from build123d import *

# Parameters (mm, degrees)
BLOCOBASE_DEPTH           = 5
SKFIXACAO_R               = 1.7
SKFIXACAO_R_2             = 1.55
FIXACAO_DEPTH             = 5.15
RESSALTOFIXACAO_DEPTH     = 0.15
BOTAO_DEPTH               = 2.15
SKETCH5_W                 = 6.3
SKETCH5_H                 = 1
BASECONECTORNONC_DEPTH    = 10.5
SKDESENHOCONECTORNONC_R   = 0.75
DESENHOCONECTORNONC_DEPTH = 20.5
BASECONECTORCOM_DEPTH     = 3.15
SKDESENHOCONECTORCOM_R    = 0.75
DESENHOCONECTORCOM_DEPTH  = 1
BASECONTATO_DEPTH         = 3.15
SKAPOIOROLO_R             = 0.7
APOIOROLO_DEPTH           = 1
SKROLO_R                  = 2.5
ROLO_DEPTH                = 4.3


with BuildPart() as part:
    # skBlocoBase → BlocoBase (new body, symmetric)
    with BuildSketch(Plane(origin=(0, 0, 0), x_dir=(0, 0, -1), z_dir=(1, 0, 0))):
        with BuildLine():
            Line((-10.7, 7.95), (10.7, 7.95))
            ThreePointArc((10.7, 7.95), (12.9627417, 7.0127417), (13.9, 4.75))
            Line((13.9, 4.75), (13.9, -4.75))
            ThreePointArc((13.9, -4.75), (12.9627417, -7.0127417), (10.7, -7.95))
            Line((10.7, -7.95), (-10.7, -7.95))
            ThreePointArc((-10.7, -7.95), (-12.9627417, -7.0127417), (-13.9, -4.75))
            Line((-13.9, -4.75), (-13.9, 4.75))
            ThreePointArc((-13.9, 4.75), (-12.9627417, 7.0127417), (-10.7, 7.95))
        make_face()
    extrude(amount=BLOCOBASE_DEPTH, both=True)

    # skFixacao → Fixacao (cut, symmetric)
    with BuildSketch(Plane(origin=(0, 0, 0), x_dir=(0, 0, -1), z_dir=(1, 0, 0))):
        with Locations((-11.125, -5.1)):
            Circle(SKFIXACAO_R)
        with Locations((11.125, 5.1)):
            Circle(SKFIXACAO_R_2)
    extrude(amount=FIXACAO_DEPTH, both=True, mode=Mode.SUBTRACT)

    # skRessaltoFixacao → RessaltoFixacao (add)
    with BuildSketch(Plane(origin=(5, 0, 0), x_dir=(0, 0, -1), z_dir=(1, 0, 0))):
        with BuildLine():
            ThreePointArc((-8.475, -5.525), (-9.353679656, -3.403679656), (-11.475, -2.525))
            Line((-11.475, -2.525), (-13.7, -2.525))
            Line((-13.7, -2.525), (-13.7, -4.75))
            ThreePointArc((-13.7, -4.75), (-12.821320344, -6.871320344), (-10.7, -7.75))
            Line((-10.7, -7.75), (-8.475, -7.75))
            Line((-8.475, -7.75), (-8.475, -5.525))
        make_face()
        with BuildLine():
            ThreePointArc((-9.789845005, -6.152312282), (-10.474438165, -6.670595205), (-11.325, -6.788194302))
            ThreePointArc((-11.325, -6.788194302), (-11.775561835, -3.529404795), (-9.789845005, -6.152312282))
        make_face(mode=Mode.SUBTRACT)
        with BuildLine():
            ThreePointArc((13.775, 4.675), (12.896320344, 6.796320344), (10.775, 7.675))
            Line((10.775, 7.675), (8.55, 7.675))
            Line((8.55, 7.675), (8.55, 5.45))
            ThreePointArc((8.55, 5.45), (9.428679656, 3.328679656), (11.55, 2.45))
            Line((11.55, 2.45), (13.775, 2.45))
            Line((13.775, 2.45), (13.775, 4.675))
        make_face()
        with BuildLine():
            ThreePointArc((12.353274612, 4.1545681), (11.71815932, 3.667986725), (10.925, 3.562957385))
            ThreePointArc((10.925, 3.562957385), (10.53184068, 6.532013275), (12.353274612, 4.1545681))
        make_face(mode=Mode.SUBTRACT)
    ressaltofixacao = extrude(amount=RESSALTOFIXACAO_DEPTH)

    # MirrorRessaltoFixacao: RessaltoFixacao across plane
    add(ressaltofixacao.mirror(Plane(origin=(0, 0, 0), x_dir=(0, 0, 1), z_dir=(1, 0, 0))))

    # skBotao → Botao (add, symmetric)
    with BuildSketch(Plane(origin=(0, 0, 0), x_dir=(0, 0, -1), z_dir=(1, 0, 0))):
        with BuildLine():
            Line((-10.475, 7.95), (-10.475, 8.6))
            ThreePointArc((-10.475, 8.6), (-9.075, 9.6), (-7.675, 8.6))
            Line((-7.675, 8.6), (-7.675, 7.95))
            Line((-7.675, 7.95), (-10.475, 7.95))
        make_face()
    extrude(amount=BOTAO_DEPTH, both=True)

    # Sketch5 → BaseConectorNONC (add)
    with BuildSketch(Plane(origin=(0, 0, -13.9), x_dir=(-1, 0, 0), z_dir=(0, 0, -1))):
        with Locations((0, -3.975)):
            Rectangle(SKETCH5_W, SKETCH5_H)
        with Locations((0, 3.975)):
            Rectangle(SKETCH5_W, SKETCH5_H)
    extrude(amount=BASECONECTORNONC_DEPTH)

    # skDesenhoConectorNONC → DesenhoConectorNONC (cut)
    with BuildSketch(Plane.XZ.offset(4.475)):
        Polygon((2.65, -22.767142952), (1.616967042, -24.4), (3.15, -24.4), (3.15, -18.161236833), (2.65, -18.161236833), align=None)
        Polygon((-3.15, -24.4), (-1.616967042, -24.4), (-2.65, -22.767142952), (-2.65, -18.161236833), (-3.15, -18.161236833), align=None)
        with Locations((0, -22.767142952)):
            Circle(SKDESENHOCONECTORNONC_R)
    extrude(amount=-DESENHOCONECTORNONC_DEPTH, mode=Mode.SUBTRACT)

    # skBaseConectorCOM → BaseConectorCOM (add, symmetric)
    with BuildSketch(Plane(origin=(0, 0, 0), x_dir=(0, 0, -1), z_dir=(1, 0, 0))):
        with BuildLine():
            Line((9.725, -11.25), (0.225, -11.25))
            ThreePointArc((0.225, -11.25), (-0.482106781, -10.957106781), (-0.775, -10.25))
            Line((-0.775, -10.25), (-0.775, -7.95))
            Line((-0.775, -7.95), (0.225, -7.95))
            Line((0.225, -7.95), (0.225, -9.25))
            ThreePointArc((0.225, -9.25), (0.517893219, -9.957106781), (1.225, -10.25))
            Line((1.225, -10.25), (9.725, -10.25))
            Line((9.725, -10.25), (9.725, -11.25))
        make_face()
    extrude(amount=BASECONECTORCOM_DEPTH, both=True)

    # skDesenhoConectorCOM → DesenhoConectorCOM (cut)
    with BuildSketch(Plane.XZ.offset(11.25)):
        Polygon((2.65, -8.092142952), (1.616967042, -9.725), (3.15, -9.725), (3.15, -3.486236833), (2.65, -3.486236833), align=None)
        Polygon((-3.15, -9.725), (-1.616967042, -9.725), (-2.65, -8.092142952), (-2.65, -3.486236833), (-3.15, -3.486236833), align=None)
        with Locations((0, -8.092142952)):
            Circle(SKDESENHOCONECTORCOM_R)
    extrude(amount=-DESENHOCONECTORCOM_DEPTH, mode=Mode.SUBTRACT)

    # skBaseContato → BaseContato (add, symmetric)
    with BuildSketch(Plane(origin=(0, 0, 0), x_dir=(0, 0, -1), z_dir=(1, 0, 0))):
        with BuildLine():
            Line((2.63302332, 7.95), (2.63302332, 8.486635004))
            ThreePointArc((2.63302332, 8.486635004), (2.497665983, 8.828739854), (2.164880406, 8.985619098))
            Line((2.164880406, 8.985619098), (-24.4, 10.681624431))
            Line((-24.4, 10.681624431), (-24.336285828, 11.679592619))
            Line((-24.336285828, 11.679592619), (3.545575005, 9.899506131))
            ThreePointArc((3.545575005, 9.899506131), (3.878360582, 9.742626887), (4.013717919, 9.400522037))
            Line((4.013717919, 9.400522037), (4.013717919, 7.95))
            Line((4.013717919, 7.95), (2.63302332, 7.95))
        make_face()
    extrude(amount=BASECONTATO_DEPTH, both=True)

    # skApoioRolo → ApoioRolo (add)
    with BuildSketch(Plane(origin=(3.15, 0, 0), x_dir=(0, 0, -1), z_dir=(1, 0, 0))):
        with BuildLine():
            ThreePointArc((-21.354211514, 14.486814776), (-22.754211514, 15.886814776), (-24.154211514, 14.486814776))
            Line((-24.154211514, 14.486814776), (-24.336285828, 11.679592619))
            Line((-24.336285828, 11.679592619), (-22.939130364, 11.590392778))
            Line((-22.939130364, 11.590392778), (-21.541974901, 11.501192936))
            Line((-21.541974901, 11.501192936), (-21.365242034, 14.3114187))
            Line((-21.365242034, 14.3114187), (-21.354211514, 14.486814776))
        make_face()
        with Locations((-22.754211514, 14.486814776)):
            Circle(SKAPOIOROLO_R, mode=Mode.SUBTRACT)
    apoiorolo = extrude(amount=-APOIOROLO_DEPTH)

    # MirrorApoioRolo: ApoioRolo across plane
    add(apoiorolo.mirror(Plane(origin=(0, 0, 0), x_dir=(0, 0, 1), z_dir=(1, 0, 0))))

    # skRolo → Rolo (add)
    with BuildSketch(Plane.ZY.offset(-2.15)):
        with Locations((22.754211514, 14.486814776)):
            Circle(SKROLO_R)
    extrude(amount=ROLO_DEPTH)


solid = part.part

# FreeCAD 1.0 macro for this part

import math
import FreeCAD as App
import Part
import Sketcher
from FreeCAD import Vector

doc = App.newDocument("Part")
body = doc.addObject("PartDesign::Body", "Body")

# Sketch on YZ plane
sketch1 = body.newObject("Sketcher::SketchObject", "Sketch")
sketch1.AttachmentSupport = (doc.getObject("YZ_Plane"), [""])
sketch1.MapMode = "FlatFace"
sketch1.addGeometry(Part.LineSegment(Vector(8, -10.7, 0), Vector(8, 10.7, 0)), False)
sketch1.addGeometry(Part.ArcOfCircle(Part.Circle(Vector(4.8, 10.7, 0), Vector(0, 0, 1), 3.2), math.radians(0), math.radians(90)), False)
sketch1.addGeometry(Part.LineSegment(Vector(4.8, 13.9, 0), Vector(-4.8, 13.9, 0)), False)
sketch1.addGeometry(Part.ArcOfCircle(Part.Circle(Vector(-4.8, 10.7, 0), Vector(0, 0, 1), 3.2), math.radians(90), math.radians(180)), False)
sketch1.addGeometry(Part.LineSegment(Vector(-8, 10.7, 0), Vector(-8, -10.7, 0)), False)
sketch1.addGeometry(Part.ArcOfCircle(Part.Circle(Vector(-4.8, -10.7, 0), Vector(0, 0, 1), 3.2), math.radians(180), math.radians(270)), False)
sketch1.addGeometry(Part.LineSegment(Vector(-4.8, -13.9, 0), Vector(4.8, -13.9, 0)), False)
sketch1.addGeometry(Part.ArcOfCircle(Part.Circle(Vector(4.8, -10.7, 0), Vector(0, 0, 1), 3.2), math.radians(-90), math.radians(0)), False)
sketch1.addConstraint(Sketcher.Constraint("Tangent", 0, 2, 1, 1))
sketch1.addConstraint(Sketcher.Constraint("Tangent", 1, 2, 2, 1))
sketch1.addConstraint(Sketcher.Constraint("Tangent", 2, 2, 3, 1))
sketch1.addConstraint(Sketcher.Constraint("Tangent", 3, 2, 4, 1))
sketch1.addConstraint(Sketcher.Constraint("Tangent", 4, 2, 5, 1))
sketch1.addConstraint(Sketcher.Constraint("Tangent", 5, 2, 6, 1))
sketch1.addConstraint(Sketcher.Constraint("Tangent", 6, 2, 7, 1))
sketch1.addConstraint(Sketcher.Constraint("Tangent", 7, 2, 0, 1))
sketch1.addConstraint(Sketcher.Constraint("Vertical", 0))
sketch1.addConstraint(Sketcher.Constraint("Horizontal", 2))
sketch1.addConstraint(Sketcher.Constraint("Vertical", 4))
sketch1.addConstraint(Sketcher.Constraint("Horizontal", 6))
sketch1.addConstraint(Sketcher.Constraint("Equal", 1, 3))
sketch1.addConstraint(Sketcher.Constraint("Equal", 3, 5))
sketch1.addConstraint(Sketcher.Constraint("Equal", 5, 7))
sketch1.addConstraint(Sketcher.Constraint("Symmetric", 1, 3, 5, 3, -1, 1))
sketch1.addConstraint(Sketcher.Constraint("Radius", 1, 3.2))
sketch1.addConstraint(Sketcher.Constraint("DistanceX", 2, 2, 2, 1, 9.5))
sketch1.addConstraint(Sketcher.Constraint("DistanceY", 0, 1, 0, 2, 21.4))
pad1 = body.newObject("PartDesign::Pad", "Pad")
pad1.Profile = sketch1
pad1.Length = 10
pad1.Midplane = True

# Sketch on YZ plane
sketch2 = body.newObject("Sketcher::SketchObject", "Sketch001")
sketch2.AttachmentSupport = (doc.getObject("YZ_Plane"), [""])
sketch2.MapMode = "FlatFace"
sketch2.addGeometry(Part.Circle(Vector(-5.1, 11.1, 0), Vector(0, 0, 1), 1.7), False)
sketch2.addGeometry(Part.Circle(Vector(5.1, -11.1, 0), Vector(0, 0, 1), 1.6), False)
sketch2.addConstraint(Sketcher.Constraint("Symmetric", 0, 3, 1, 3, -1, 1))
sketch2.addConstraint(Sketcher.Constraint("Diameter", 0, 3.4))
sketch2.addConstraint(Sketcher.Constraint("Diameter", 1, 3.1))
sketch2.addConstraint(Sketcher.Constraint("DistanceX", 0, 3, -1, 1, 5.1))
sketch2.addConstraint(Sketcher.Constraint("DistanceY", 1, 3, 0, 3, 22.25))
pocket1 = body.newObject("PartDesign::Pocket", "Pocket")
pocket1.Profile = sketch2
pocket1.Length = 10.3
pocket1.Midplane = True

# Sketch on YZ plane
sketch3 = body.newObject("Sketcher::SketchObject", "Sketch002")
sketch3.AttachmentSupport = (doc.getObject("YZ_Plane"), [""])
sketch3.MapMode = "FlatFace"
sketch3.AttachmentOffset = App.Placement(Vector(0, 0, 5), App.Rotation())
sketch3.addGeometry(Part.ArcOfCircle(Part.Circle(Vector(-5.5, 11.5, 0), Vector(0, 0, 1), 3), math.radians(-90), math.radians(0)), False)
sketch3.addGeometry(Part.LineSegment(Vector(-2.5, 11.5, 0), Vector(-2.5, 13.7, 0)), False)
sketch3.addGeometry(Part.LineSegment(Vector(-2.5, 13.7, 0), Vector(-4.8, 13.7, 0)), False)
sketch3.addGeometry(Part.ArcOfCircle(Part.Circle(Vector(-4.8, 10.7, 0), Vector(0, 0, 1), 3), math.radians(90), math.radians(180)), False)
sketch3.addGeometry(Part.LineSegment(Vector(-7.8, 10.7, 0), Vector(-7.8, 8.5, 0)), False)
sketch3.addGeometry(Part.LineSegment(Vector(-7.8, 8.5, 0), Vector(-5.5, 8.5, 0)), False)
sketch3.addGeometry(Part.ArcOfCircle(Part.Circle(Vector(-5.1, 11.1, 0), Vector(0, 0, 1), 1.7), math.radians(-128), math.radians(173)), False)
sketch3.addGeometry(Part.ArcOfCircle(Part.Circle(Vector(-5.1, 11.1, 0), Vector(0, 0, 1), 1.7), math.radians(173), math.radians(232)), False)
sketch3.addGeometry(Part.ArcOfCircle(Part.Circle(Vector(4.7, -10.8, 0), Vector(0, 0, 1), 3), math.radians(-90), math.radians(0)), False)
sketch3.addGeometry(Part.LineSegment(Vector(7.7, -10.8, 0), Vector(7.7, -8.6, 0)), False)
sketch3.addGeometry(Part.LineSegment(Vector(7.7, -8.6, 0), Vector(5.5, -8.6, 0)), False)
sketch3.addGeometry(Part.ArcOfCircle(Part.Circle(Vector(5.4, -11.5, 0), Vector(0, 0, 1), 3), math.radians(90), math.radians(180)), False)
sketch3.addGeometry(Part.LineSegment(Vector(2.5, -11.6, 0), Vector(2.5, -13.8, 0)), False)
sketch3.addGeometry(Part.LineSegment(Vector(2.5, -13.8, 0), Vector(4.7, -13.8, 0)), False)
sketch3.addGeometry(Part.ArcOfCircle(Part.Circle(Vector(5.1, -11.1, 0), Vector(0, 0, 1), 1.6), math.radians(-128), math.radians(173)), False)
sketch3.addGeometry(Part.ArcOfCircle(Part.Circle(Vector(5.1, -11.1, 0), Vector(0, 0, 1), 1.6), math.radians(173), math.radians(232)), False)
sketch3.addConstraint(Sketcher.Constraint("Tangent", 0, 2, 1, 1))
sketch3.addConstraint(Sketcher.Constraint("Coincident", 1, 2, 2, 1))
sketch3.addConstraint(Sketcher.Constraint("Tangent", 2, 2, 3, 1))
sketch3.addConstraint(Sketcher.Constraint("Tangent", 3, 2, 4, 1))
sketch3.addConstraint(Sketcher.Constraint("Coincident", 4, 2, 5, 1))
sketch3.addConstraint(Sketcher.Constraint("Tangent", 5, 2, 0, 1))
sketch3.addConstraint(Sketcher.Constraint("Tangent", 6, 1, 7, 2))
sketch3.addConstraint(Sketcher.Constraint("Coincident", 7, 1, 6, 2))
sketch3.addConstraint(Sketcher.Constraint("Tangent", 8, 2, 9, 1))
sketch3.addConstraint(Sketcher.Constraint("Coincident", 9, 2, 10, 1))
sketch3.addConstraint(Sketcher.Constraint("Tangent", 10, 2, 11, 1))
sketch3.addConstraint(Sketcher.Constraint("Tangent", 11, 2, 12, 1))
sketch3.addConstraint(Sketcher.Constraint("Coincident", 12, 2, 13, 1))
sketch3.addConstraint(Sketcher.Constraint("Tangent", 13, 2, 8, 1))
sketch3.addConstraint(Sketcher.Constraint("Tangent", 14, 1, 15, 2))
sketch3.addConstraint(Sketcher.Constraint("Coincident", 15, 1, 14, 2))
sketch3.addConstraint(Sketcher.Constraint("Vertical", 1))
sketch3.addConstraint(Sketcher.Constraint("Horizontal", 2))
sketch3.addConstraint(Sketcher.Constraint("Vertical", 4))
sketch3.addConstraint(Sketcher.Constraint("Horizontal", 5))
sketch3.addConstraint(Sketcher.Constraint("Vertical", 9))
sketch3.addConstraint(Sketcher.Constraint("Horizontal", 10))
sketch3.addConstraint(Sketcher.Constraint("Vertical", 12))
sketch3.addConstraint(Sketcher.Constraint("Horizontal", 13))
sketch3.addConstraint(Sketcher.Constraint("Equal", 0, 3))
sketch3.addConstraint(Sketcher.Constraint("Equal", 3, 8))
sketch3.addConstraint(Sketcher.Constraint("Equal", 8, 11))
sketch3.addConstraint(Sketcher.Constraint("Symmetric", 6, 3, 14, 3, -1, 1))
sketch3.addConstraint(Sketcher.Constraint("Equal", 5, 10))
sketch3.addConstraint(Sketcher.Constraint("Equal", 13, 1))
sketch3.addConstraint(Sketcher.Constraint("Equal", 4, 9))
sketch3.addConstraint(Sketcher.Constraint("Radius", 0, 3.0))
sketch3.addConstraint(Sketcher.Constraint("Radius", 6, 1.7))
sketch3.addConstraint(Sketcher.Constraint("Radius", 14, 1.55))
sketch3.addConstraint(Sketcher.Constraint("DistanceY", -1, 1, 3, 3, 10.7))
sketch3.addConstraint(Sketcher.Constraint("DistanceX", 6, 3, -1, 1, 5.1))
sketch3.addConstraint(Sketcher.Constraint("DistanceY", 8, 3, 6, 3, 21.9))
sketch3.addConstraint(Sketcher.Constraint("DistanceX", 0, 3, 8, 3, 10.2))
sketch3.addConstraint(Sketcher.Constraint("DistanceY", 6, 3, 7, 1, 0.2))
sketch3.addConstraint(Sketcher.Constraint("DistanceY", 14, 3, 15, 1, 0.2))
sketch3.addConstraint(Sketcher.Constraint("DistanceX", 2, 2, 2, 1, 2.225))
sketch3.addConstraint(Sketcher.Constraint("DistanceX", 3, 3, -1, 1, 4.75))
sketch3.addConstraint(Sketcher.Constraint("DistanceY", 11, 3, -1, 1, 11.55))
sketch3.addConstraint(Sketcher.Constraint("DistanceX", -1, 1, 14, 1, 4.154568))
sketch3.addConstraint(Sketcher.Constraint("DistanceX", 6, 1, -1, 1, 6.152312))
pad2 = body.newObject("PartDesign::Pad", "Pad001")
pad2.Profile = sketch3
pad2.Length = 0.15
doc.recompute()

mirrored = body.newObject("PartDesign::Mirrored", "Mirrored")
mirrored.Originals = [pad2]
mirrored.MirrorPlane = (doc.getObject("YZ_Plane"), [""])
body.Tip = mirrored

# Sketch on YZ plane
sketch4 = body.newObject("Sketcher::SketchObject", "Sketch003")
sketch4.AttachmentSupport = (doc.getObject("YZ_Plane"), [""])
sketch4.MapMode = "FlatFace"
sketch4.addGeometry(Part.LineSegment(Vector(8.6, 10.5, 0), Vector(8, 10.5, 0)), False)
sketch4.addGeometry(Part.LineSegment(Vector(8, 10.5, 0), Vector(8, 7.7, 0)), False)
sketch4.addGeometry(Part.LineSegment(Vector(8, 7.7, 0), Vector(8.6, 7.7, 0)), False)
sketch4.addGeometry(Part.ArcOfCircle(Part.Circle(Vector(8.1, 9.1, 0), Vector(0, 0, 1), 1.5), math.radians(-71), math.radians(71)), False)
sketch4.addConstraint(Sketcher.Constraint("Coincident", 0, 2, 1, 1))
sketch4.addConstraint(Sketcher.Constraint("Coincident", 1, 2, 2, 1))
sketch4.addConstraint(Sketcher.Constraint("Coincident", 2, 2, 3, 1))
sketch4.addConstraint(Sketcher.Constraint("Coincident", 3, 2, 0, 1))
sketch4.addConstraint(Sketcher.Constraint("Horizontal", 0))
sketch4.addConstraint(Sketcher.Constraint("Vertical", 1))
sketch4.addConstraint(Sketcher.Constraint("Horizontal", 2))
sketch4.addConstraint(Sketcher.Constraint("Vertical", 2, 2, 3, 2))
sketch4.addConstraint(Sketcher.Constraint("Radius", 3, 1.48))
sketch4.addConstraint(Sketcher.Constraint("DistanceY", 1, 2, 1, 1, 2.8))
sketch4.addConstraint(Sketcher.Constraint("DistanceX", 0, 2, 0, 1, 0.65))
sketch4.addConstraint(Sketcher.Constraint("DistanceX", -1, 1, 2, 2, 8.6))
sketch4.addConstraint(Sketcher.Constraint("DistanceY", -1, 1, 3, 3, 9.075))
pad3 = body.newObject("PartDesign::Pad", "Pad002")
pad3.Profile = sketch4
pad3.Length = 4.3
pad3.Midplane = True

# Sketch on XY plane
sketch5 = body.newObject("Sketcher::SketchObject", "Sketch004")
sketch5.AttachmentSupport = (doc.getObject("XY_Plane"), [""])
sketch5.MapMode = "FlatFace"
sketch5.AttachmentOffset = App.Placement(Vector(0, 0, -13.9), App.Rotation())
sketch5.addGeometry(Part.LineSegment(Vector(3.1, -3.5, 0), Vector(3.1, -4.5, 0)), False)
sketch5.addGeometry(Part.LineSegment(Vector(3.1, -4.5, 0), Vector(-3.1, -4.5, 0)), False)
sketch5.addGeometry(Part.LineSegment(Vector(-3.1, -4.5, 0), Vector(-3.1, -3.5, 0)), False)
sketch5.addGeometry(Part.LineSegment(Vector(-3.1, -3.5, 0), Vector(3.1, -3.5, 0)), False)
sketch5.addGeometry(Part.LineSegment(Vector(3.1, 4.5, 0), Vector(3.1, 3.5, 0)), False)
sketch5.addGeometry(Part.LineSegment(Vector(3.1, 3.5, 0), Vector(-3.1, 3.5, 0)), False)
sketch5.addGeometry(Part.LineSegment(Vector(-3.1, 3.5, 0), Vector(-3.1, 4.5, 0)), False)
sketch5.addGeometry(Part.LineSegment(Vector(-3.1, 4.5, 0), Vector(3.1, 4.5, 0)), False)
sketch5.addConstraint(Sketcher.Constraint("Coincident", 0, 2, 1, 1))
sketch5.addConstraint(Sketcher.Constraint("Coincident", 1, 2, 2, 1))
sketch5.addConstraint(Sketcher.Constraint("Coincident", 2, 2, 3, 1))
sketch5.addConstraint(Sketcher.Constraint("Coincident", 3, 2, 0, 1))
sketch5.addConstraint(Sketcher.Constraint("Coincident", 4, 2, 5, 1))
sketch5.addConstraint(Sketcher.Constraint("Coincident", 5, 2, 6, 1))
sketch5.addConstraint(Sketcher.Constraint("Coincident", 6, 2, 7, 1))
sketch5.addConstraint(Sketcher.Constraint("Coincident", 7, 2, 4, 1))
sketch5.addConstraint(Sketcher.Constraint("Vertical", 0))
sketch5.addConstraint(Sketcher.Constraint("Horizontal", 1))
sketch5.addConstraint(Sketcher.Constraint("Vertical", 2))
sketch5.addConstraint(Sketcher.Constraint("Horizontal", 3))
sketch5.addConstraint(Sketcher.Constraint("Vertical", 4))
sketch5.addConstraint(Sketcher.Constraint("Horizontal", 5))
sketch5.addConstraint(Sketcher.Constraint("Vertical", 6))
sketch5.addConstraint(Sketcher.Constraint("Horizontal", 7))
sketch5.addConstraint(Sketcher.Constraint("Symmetric", 2, 2, 4, 2, -1, 1))
sketch5.addConstraint(Sketcher.Constraint("Symmetric", 0, 2, 6, 2, -1, 1))
sketch5.addConstraint(Sketcher.Constraint("Vertical", 3, 2, 4, 2))
sketch5.addConstraint(Sketcher.Constraint("DistanceY", 0, 2, 0, 1, 1.0))
sketch5.addConstraint(Sketcher.Constraint("DistanceX", 1, 2, 1, 1, 6.3))
sketch5.addConstraint(Sketcher.Constraint("DistanceY", 3, 2, 4, 2, 6.95))
pad4 = body.newObject("PartDesign::Pad", "Pad003")
pad4.Profile = sketch5
pad4.Length = 10.5
pad4.Reversed = True

# Sketch on XZ plane
sketch6 = body.newObject("Sketcher::SketchObject", "Sketch005")
sketch6.AttachmentSupport = (doc.getObject("XZ_Plane"), [""])
sketch6.MapMode = "FlatFace"
sketch6.AttachmentOffset = App.Placement(Vector(0, 0, 4.475), App.Rotation())
sketch6.addGeometry(Part.LineSegment(Vector(2.6, -22.8, 0), Vector(1.6, -24.4, 0)), False)
sketch6.addGeometry(Part.LineSegment(Vector(1.6, -24.4, 0), Vector(3.1, -24.4, 0)), False)
sketch6.addGeometry(Part.LineSegment(Vector(3.1, -24.4, 0), Vector(3.1, -18.2, 0)), False)
sketch6.addGeometry(Part.LineSegment(Vector(3.1, -18.2, 0), Vector(2.6, -18.2, 0)), False)
sketch6.addGeometry(Part.LineSegment(Vector(2.6, -18.2, 0), Vector(2.6, -22.8, 0)), False)
sketch6.addGeometry(Part.LineSegment(Vector(-3.1, -24.4, 0), Vector(-1.6, -24.4, 0)), False)
sketch6.addGeometry(Part.LineSegment(Vector(-1.6, -24.4, 0), Vector(-2.6, -22.8, 0)), False)
sketch6.addGeometry(Part.LineSegment(Vector(-2.6, -22.8, 0), Vector(-2.6, -18.2, 0)), False)
sketch6.addGeometry(Part.LineSegment(Vector(-2.6, -18.2, 0), Vector(-3.1, -18.2, 0)), False)
sketch6.addGeometry(Part.LineSegment(Vector(-3.1, -18.2, 0), Vector(-3.1, -24.4, 0)), False)
sketch6.addGeometry(Part.Circle(Vector(0, -22.8, 0), Vector(0, 0, 1), 0.8), False)
sketch6.addConstraint(Sketcher.Constraint("Coincident", 0, 2, 1, 1))
sketch6.addConstraint(Sketcher.Constraint("Coincident", 1, 2, 2, 1))
sketch6.addConstraint(Sketcher.Constraint("Coincident", 2, 2, 3, 1))
sketch6.addConstraint(Sketcher.Constraint("Coincident", 3, 2, 4, 1))
sketch6.addConstraint(Sketcher.Constraint("Coincident", 4, 2, 0, 1))
sketch6.addConstraint(Sketcher.Constraint("Coincident", 5, 2, 6, 1))
sketch6.addConstraint(Sketcher.Constraint("Coincident", 6, 2, 7, 1))
sketch6.addConstraint(Sketcher.Constraint("Coincident", 7, 2, 8, 1))
sketch6.addConstraint(Sketcher.Constraint("Coincident", 8, 2, 9, 1))
sketch6.addConstraint(Sketcher.Constraint("Coincident", 9, 2, 5, 1))
sketch6.addConstraint(Sketcher.Constraint("Horizontal", 1))
sketch6.addConstraint(Sketcher.Constraint("Vertical", 2))
sketch6.addConstraint(Sketcher.Constraint("Horizontal", 3))
sketch6.addConstraint(Sketcher.Constraint("Vertical", 4))
sketch6.addConstraint(Sketcher.Constraint("Horizontal", 5))
sketch6.addConstraint(Sketcher.Constraint("Vertical", 7))
sketch6.addConstraint(Sketcher.Constraint("Horizontal", 8))
sketch6.addConstraint(Sketcher.Constraint("Vertical", 9))
sketch6.addConstraint(Sketcher.Constraint("Symmetric", 0, 2, 5, 2, -2))
sketch6.addConstraint(Sketcher.Constraint("Symmetric", 4, 2, 6, 2, -2))
sketch6.addConstraint(Sketcher.Constraint("Symmetric", 2, 2, 8, 2, -2))
sketch6.addConstraint(Sketcher.Constraint("PointOnObject", 10, 3, -2))
sketch6.addConstraint(Sketcher.Constraint("Horizontal", 10, 3, 4, 2))
sketch6.addConstraint(Sketcher.Constraint("Diameter", 10, 1.5))
sketch6.addConstraint(Sketcher.Constraint("DistanceX", 3, 2, 3, 1, 0.5))
sketch6.addConstraint(Sketcher.Constraint("DistanceY", 0, 2, -1, 1, 24.4))
sketch6.addConstraint(Sketcher.Constraint("DistanceX", 6, 2, 4, 2, 5.3))
sketch6.addConstraint(Sketcher.Constraint("DistanceX", 1, 1, 1, 2, 1.533033))
sketch6.addConstraint(Sketcher.Constraint("DistanceY", 2, 1, 2, 2, 6.238763))
sketch6.addConstraint(Sketcher.Constraint("DistanceY", 4, 2, 4, 1, 4.605906))
pocket2 = body.newObject("PartDesign::Pocket", "Pocket001")
pocket2.Profile = sketch6
pocket2.Length = 20.5

# Sketch on YZ plane
sketch7 = body.newObject("Sketcher::SketchObject", "Sketch006")
sketch7.AttachmentSupport = (doc.getObject("YZ_Plane"), [""])
sketch7.MapMode = "FlatFace"
sketch7.addGeometry(Part.LineSegment(Vector(-11.2, -0.2, 0), Vector(-11.2, -9.7, 0)), False)
sketch7.addGeometry(Part.LineSegment(Vector(-11.2, -9.7, 0), Vector(-10.2, -9.7, 0)), False)
sketch7.addGeometry(Part.LineSegment(Vector(-10.2, -9.7, 0), Vector(-10.2, -1.2, 0)), False)
sketch7.addGeometry(Part.ArcOfCircle(Part.Circle(Vector(-9.2, -1.2, 0), Vector(0, 0, 1), 1), math.radians(90), math.radians(180)), False)
sketch7.addGeometry(Part.LineSegment(Vector(-9.2, -0.2, 0), Vector(-8, -0.2, 0)), False)
sketch7.addGeometry(Part.LineSegment(Vector(-8, -0.2, 0), Vector(-8, 0.8, 0)), False)
sketch7.addGeometry(Part.LineSegment(Vector(-8, 0.8, 0), Vector(-10.2, 0.8, 0)), False)
sketch7.addGeometry(Part.ArcOfCircle(Part.Circle(Vector(-10.2, -0.2, 0), Vector(0, 0, 1), 1), math.radians(90), math.radians(180)), False)
sketch7.addConstraint(Sketcher.Constraint("Coincident", 0, 2, 1, 1))
sketch7.addConstraint(Sketcher.Constraint("Coincident", 1, 2, 2, 1))
sketch7.addConstraint(Sketcher.Constraint("Tangent", 2, 2, 3, 2))
sketch7.addConstraint(Sketcher.Constraint("Tangent", 3, 1, 4, 1))
sketch7.addConstraint(Sketcher.Constraint("Coincident", 4, 2, 5, 1))
sketch7.addConstraint(Sketcher.Constraint("Coincident", 5, 2, 6, 1))
sketch7.addConstraint(Sketcher.Constraint("Tangent", 6, 2, 7, 1))
sketch7.addConstraint(Sketcher.Constraint("Tangent", 7, 2, 0, 1))
sketch7.addConstraint(Sketcher.Constraint("Vertical", 0))
sketch7.addConstraint(Sketcher.Constraint("Horizontal", 1))
sketch7.addConstraint(Sketcher.Constraint("Vertical", 2))
sketch7.addConstraint(Sketcher.Constraint("Horizontal", 4))
sketch7.addConstraint(Sketcher.Constraint("Vertical", 5))
sketch7.addConstraint(Sketcher.Constraint("Horizontal", 6))
sketch7.addConstraint(Sketcher.Constraint("Equal", 3, 7))
sketch7.addConstraint(Sketcher.Constraint("Horizontal", 7, 3, 3, 1))
sketch7.addConstraint(Sketcher.Constraint("Vertical", 7, 3, 1, 2))
sketch7.addConstraint(Sketcher.Constraint("Radius", 3, 1.0))
sketch7.addConstraint(Sketcher.Constraint("DistanceX", 4, 1, 4, 2, 1.3))
sketch7.addConstraint(Sketcher.Constraint("DistanceY", 0, 2, 0, 1, 9.5))
sketch7.addConstraint(Sketcher.Constraint("DistanceX", 3, 3, -1, 1, 9.25))
sketch7.addConstraint(Sketcher.Constraint("DistanceY", 3, 3, -1, 1, 1.225))
pad5 = body.newObject("PartDesign::Pad", "Pad004")
pad5.Profile = sketch7
pad5.Length = 6.3
pad5.Midplane = True

# Sketch on XZ plane
sketch8 = body.newObject("Sketcher::SketchObject", "Sketch007")
sketch8.AttachmentSupport = (doc.getObject("XZ_Plane"), [""])
sketch8.MapMode = "FlatFace"
sketch8.AttachmentOffset = App.Placement(Vector(0, 0, 11.25), App.Rotation())
sketch8.addGeometry(Part.LineSegment(Vector(2.6, -8.1, 0), Vector(1.6, -9.7, 0)), False)
sketch8.addGeometry(Part.LineSegment(Vector(1.6, -9.7, 0), Vector(3.1, -9.7, 0)), False)
sketch8.addGeometry(Part.LineSegment(Vector(3.1, -9.7, 0), Vector(3.1, -3.5, 0)), False)
sketch8.addGeometry(Part.LineSegment(Vector(3.1, -3.5, 0), Vector(2.6, -3.5, 0)), False)
sketch8.addGeometry(Part.LineSegment(Vector(2.6, -3.5, 0), Vector(2.6, -8.1, 0)), False)
sketch8.addGeometry(Part.LineSegment(Vector(-3.1, -9.7, 0), Vector(-1.6, -9.7, 0)), False)
sketch8.addGeometry(Part.LineSegment(Vector(-1.6, -9.7, 0), Vector(-2.6, -8.1, 0)), False)
sketch8.addGeometry(Part.LineSegment(Vector(-2.6, -8.1, 0), Vector(-2.6, -3.5, 0)), False)
sketch8.addGeometry(Part.LineSegment(Vector(-2.6, -3.5, 0), Vector(-3.1, -3.5, 0)), False)
sketch8.addGeometry(Part.LineSegment(Vector(-3.1, -3.5, 0), Vector(-3.1, -9.7, 0)), False)
sketch8.addGeometry(Part.Circle(Vector(0, -8.1, 0), Vector(0, 0, 1), 0.8), False)
sketch8.addConstraint(Sketcher.Constraint("Coincident", 0, 2, 1, 1))
sketch8.addConstraint(Sketcher.Constraint("Coincident", 1, 2, 2, 1))
sketch8.addConstraint(Sketcher.Constraint("Coincident", 2, 2, 3, 1))
sketch8.addConstraint(Sketcher.Constraint("Coincident", 3, 2, 4, 1))
sketch8.addConstraint(Sketcher.Constraint("Coincident", 4, 2, 0, 1))
sketch8.addConstraint(Sketcher.Constraint("Coincident", 5, 2, 6, 1))
sketch8.addConstraint(Sketcher.Constraint("Coincident", 6, 2, 7, 1))
sketch8.addConstraint(Sketcher.Constraint("Coincident", 7, 2, 8, 1))
sketch8.addConstraint(Sketcher.Constraint("Coincident", 8, 2, 9, 1))
sketch8.addConstraint(Sketcher.Constraint("Coincident", 9, 2, 5, 1))
sketch8.addConstraint(Sketcher.Constraint("Horizontal", 1))
sketch8.addConstraint(Sketcher.Constraint("Vertical", 2))
sketch8.addConstraint(Sketcher.Constraint("Horizontal", 3))
sketch8.addConstraint(Sketcher.Constraint("Vertical", 4))
sketch8.addConstraint(Sketcher.Constraint("Horizontal", 5))
sketch8.addConstraint(Sketcher.Constraint("Vertical", 7))
sketch8.addConstraint(Sketcher.Constraint("Horizontal", 8))
sketch8.addConstraint(Sketcher.Constraint("Vertical", 9))
sketch8.addConstraint(Sketcher.Constraint("Symmetric", 0, 2, 5, 2, -2))
sketch8.addConstraint(Sketcher.Constraint("Symmetric", 4, 2, 6, 2, -2))
sketch8.addConstraint(Sketcher.Constraint("Symmetric", 2, 2, 8, 2, -2))
sketch8.addConstraint(Sketcher.Constraint("PointOnObject", 10, 3, -2))
sketch8.addConstraint(Sketcher.Constraint("Horizontal", 10, 3, 4, 2))
sketch8.addConstraint(Sketcher.Constraint("Diameter", 10, 1.5))
sketch8.addConstraint(Sketcher.Constraint("DistanceX", 3, 2, 3, 1, 0.5))
sketch8.addConstraint(Sketcher.Constraint("DistanceX", 6, 2, 4, 2, 5.3))
sketch8.addConstraint(Sketcher.Constraint("DistanceY", 0, 2, -1, 1, 9.725))
sketch8.addConstraint(Sketcher.Constraint("DistanceX", 1, 1, 1, 2, 1.533033))
sketch8.addConstraint(Sketcher.Constraint("DistanceY", 2, 1, 2, 2, 6.238763))
sketch8.addConstraint(Sketcher.Constraint("DistanceY", 4, 2, 4, 1, 4.605906))
pocket3 = body.newObject("PartDesign::Pocket", "Pocket002")
pocket3.Profile = sketch8
pocket3.Length = 1

# Sketch on YZ plane
sketch9 = body.newObject("Sketcher::SketchObject", "Sketch008")
sketch9.AttachmentSupport = (doc.getObject("YZ_Plane"), [""])
sketch9.MapMode = "FlatFace"
sketch9.addGeometry(Part.LineSegment(Vector(8.5, -2.6, 0), Vector(8, -2.6, 0)), False)
sketch9.addGeometry(Part.LineSegment(Vector(8, -2.6, 0), Vector(8, -4, 0)), False)
sketch9.addGeometry(Part.LineSegment(Vector(8, -4, 0), Vector(9.4, -4, 0)), False)
sketch9.addGeometry(Part.ArcOfCircle(Part.Circle(Vector(9.4, -3.5, 0), Vector(0, 0, 1), 0.5), math.radians(-90), math.radians(-4)), False)
sketch9.addGeometry(Part.LineSegment(Vector(9.9, -3.5, 0), Vector(11.7, 24.3, 0)), False)
sketch9.addGeometry(Part.LineSegment(Vector(11.7, 24.3, 0), Vector(10.7, 24.4, 0)), False)
sketch9.addGeometry(Part.LineSegment(Vector(10.7, 24.4, 0), Vector(9, -2.2, 0)), False)
sketch9.addGeometry(Part.ArcOfCircle(Part.Circle(Vector(8.5, -2.1, 0), Vector(0, 0, 1), 0.5), math.radians(-90), math.radians(-4)), False)
sketch9.addConstraint(Sketcher.Constraint("Coincident", 0, 2, 1, 1))
sketch9.addConstraint(Sketcher.Constraint("Coincident", 1, 2, 2, 1))
sketch9.addConstraint(Sketcher.Constraint("Tangent", 2, 2, 3, 1))
sketch9.addConstraint(Sketcher.Constraint("Tangent", 3, 2, 4, 1))
sketch9.addConstraint(Sketcher.Constraint("Coincident", 4, 2, 5, 1))
sketch9.addConstraint(Sketcher.Constraint("Coincident", 5, 2, 6, 1))
sketch9.addConstraint(Sketcher.Constraint("Tangent", 6, 2, 7, 2))
sketch9.addConstraint(Sketcher.Constraint("Tangent", 7, 1, 0, 1))
sketch9.addConstraint(Sketcher.Constraint("Horizontal", 0))
sketch9.addConstraint(Sketcher.Constraint("Vertical", 1))
sketch9.addConstraint(Sketcher.Constraint("Horizontal", 2))
sketch9.addConstraint(Sketcher.Constraint("Equal", 3, 7))
sketch9.addConstraint(Sketcher.Constraint("Perpendicular", 4, 5))
sketch9.addConstraint(Sketcher.Constraint("Perpendicular", 5, 6))
sketch9.addConstraint(Sketcher.Constraint("Radius", 3, 0.5))
sketch9.addConstraint(Sketcher.Constraint("Distance", 5, 1.0))
sketch9.addConstraint(Sketcher.Constraint("DistanceY", -1, 1, 5, 2, 24.4))
sketch9.addConstraint(Sketcher.Constraint("DistanceX", -1, 1, 0, 2, 7.95))
sketch9.addConstraint(Sketcher.Constraint("DistanceX", 0, 2, 0, 1, 0.536635))
sketch9.addConstraint(Sketcher.Constraint("DistanceX", 2, 1, 2, 2, 1.450522))
sketch9.addConstraint(Sketcher.Constraint("DistanceY", 1, 2, 1, 1, 1.380695))
sketch9.addConstraint(Sketcher.Constraint("DistanceY", 6, 2, -1, 1, 2.16488))
pad6 = body.newObject("PartDesign::Pad", "Pad005")
pad6.Profile = sketch9
pad6.Length = 6.3
pad6.Midplane = True

# Sketch on YZ plane
sketch10 = body.newObject("Sketcher::SketchObject", "Sketch009")
sketch10.AttachmentSupport = (doc.getObject("YZ_Plane"), [""])
sketch10.MapMode = "FlatFace"
sketch10.AttachmentOffset = App.Placement(Vector(0, 0, 3.15), App.Rotation())
sketch10.addGeometry(Part.ArcOfCircle(Part.Circle(Vector(14.49, 22.75, 0), Vector(0, 0, 1), 1.4), math.radians(-90), math.radians(90)), False)
sketch10.addGeometry(Part.LineSegment(Vector(14.49, 24.15, 0), Vector(11.68, 24.34, 0)), False)
sketch10.addGeometry(Part.LineSegment(Vector(11.68, 24.34, 0), Vector(11.59, 22.94, 0)), False)
sketch10.addGeometry(Part.LineSegment(Vector(11.59, 22.94, 0), Vector(11.5, 21.54, 0)), False)
sketch10.addGeometry(Part.LineSegment(Vector(11.5, 21.54, 0), Vector(14.31, 21.37, 0)), False)
sketch10.addGeometry(Part.LineSegment(Vector(14.31, 21.37, 0), Vector(14.49, 21.35, 0)), False)
sketch10.addGeometry(Part.Circle(Vector(14.49, 22.75, 0), Vector(0, 0, 1), 0.7), False)
sketch10.addConstraint(Sketcher.Constraint("Coincident", 0, 2, 1, 1))
sketch10.addConstraint(Sketcher.Constraint("Coincident", 1, 2, 2, 1))
sketch10.addConstraint(Sketcher.Constraint("Coincident", 2, 2, 3, 1))
sketch10.addConstraint(Sketcher.Constraint("Coincident", 3, 2, 4, 1))
sketch10.addConstraint(Sketcher.Constraint("Coincident", 4, 2, 5, 1))
sketch10.addConstraint(Sketcher.Constraint("Coincident", 5, 2, 0, 1))
sketch10.addConstraint(Sketcher.Constraint("Coincident", 6, 3, 0, 3))
sketch10.addConstraint(Sketcher.Constraint("Parallel", 2, 3))
sketch10.addConstraint(Sketcher.Constraint("Parallel", 4, 5))
sketch10.addConstraint(Sketcher.Constraint("Vertical", 6, 3, 0, 2))
sketch10.addConstraint(Sketcher.Constraint("Vertical", 0, 2, 5, 2))
sketch10.addConstraint(Sketcher.Constraint("Equal", 2, 3))
sketch10.addConstraint(Sketcher.Constraint("Diameter", 6, 1.4))
sketch10.addConstraint(Sketcher.Constraint("Radius", 0, 1.4))
sketch10.addConstraint(Sketcher.Constraint("Distance", 2, 1.4))
sketch10.addConstraint(Sketcher.Constraint("DistanceX", 2, 2, 1, 2, 0.0892))
sketch10.addConstraint(Sketcher.Constraint("Distance", 1, 2.813121))
sketch10.addConstraint(Sketcher.Constraint("DistanceY", -1, 1, 0, 3, 22.754212))
sketch10.addConstraint(Sketcher.Constraint("DistanceY", -1, 1, 2, 2, 22.93913))
sketch10.addConstraint(Sketcher.Constraint("DistanceX", -1, 1, 4, 2, 14.311419))
sketch10.addConstraint(Sketcher.Constraint("DistanceY", 4, 2, 0, 3, 1.388969))
pad7 = body.newObject("PartDesign::Pad", "Pad006")
pad7.Profile = sketch10
pad7.Length = 1
pad7.Reversed = True
doc.recompute()

mirrored2 = body.newObject("PartDesign::Mirrored", "Mirrored001")
mirrored2.Originals = [pad7]
mirrored2.MirrorPlane = (doc.getObject("YZ_Plane"), [""])
body.Tip = mirrored2

# Sketch on YZ plane
sketch11 = body.newObject("Sketcher::SketchObject", "Sketch010")
sketch11.AttachmentSupport = (doc.getObject("YZ_Plane"), [""])
sketch11.MapMode = "FlatFace"
sketch11.AttachmentOffset = App.Placement(Vector(0, 0, 2.15), App.Rotation())
sketch11.addGeometry(Part.Circle(Vector(14.5, 22.8, 0), Vector(0, 0, 1), 2.5), False)
sketch11.addConstraint(Sketcher.Constraint("Diameter", 0, 5.0))
sketch11.addConstraint(Sketcher.Constraint("DistanceY", -1, 1, 0, 3, 22.754212))
sketch11.addConstraint(Sketcher.Constraint("DistanceX", -1, 1, 0, 3, 14.486815))
pad8 = body.newObject("PartDesign::Pad", "Pad007")
pad8.Profile = sketch11
pad8.Length = 4.3
pad8.Reversed = True

doc.recompute()
